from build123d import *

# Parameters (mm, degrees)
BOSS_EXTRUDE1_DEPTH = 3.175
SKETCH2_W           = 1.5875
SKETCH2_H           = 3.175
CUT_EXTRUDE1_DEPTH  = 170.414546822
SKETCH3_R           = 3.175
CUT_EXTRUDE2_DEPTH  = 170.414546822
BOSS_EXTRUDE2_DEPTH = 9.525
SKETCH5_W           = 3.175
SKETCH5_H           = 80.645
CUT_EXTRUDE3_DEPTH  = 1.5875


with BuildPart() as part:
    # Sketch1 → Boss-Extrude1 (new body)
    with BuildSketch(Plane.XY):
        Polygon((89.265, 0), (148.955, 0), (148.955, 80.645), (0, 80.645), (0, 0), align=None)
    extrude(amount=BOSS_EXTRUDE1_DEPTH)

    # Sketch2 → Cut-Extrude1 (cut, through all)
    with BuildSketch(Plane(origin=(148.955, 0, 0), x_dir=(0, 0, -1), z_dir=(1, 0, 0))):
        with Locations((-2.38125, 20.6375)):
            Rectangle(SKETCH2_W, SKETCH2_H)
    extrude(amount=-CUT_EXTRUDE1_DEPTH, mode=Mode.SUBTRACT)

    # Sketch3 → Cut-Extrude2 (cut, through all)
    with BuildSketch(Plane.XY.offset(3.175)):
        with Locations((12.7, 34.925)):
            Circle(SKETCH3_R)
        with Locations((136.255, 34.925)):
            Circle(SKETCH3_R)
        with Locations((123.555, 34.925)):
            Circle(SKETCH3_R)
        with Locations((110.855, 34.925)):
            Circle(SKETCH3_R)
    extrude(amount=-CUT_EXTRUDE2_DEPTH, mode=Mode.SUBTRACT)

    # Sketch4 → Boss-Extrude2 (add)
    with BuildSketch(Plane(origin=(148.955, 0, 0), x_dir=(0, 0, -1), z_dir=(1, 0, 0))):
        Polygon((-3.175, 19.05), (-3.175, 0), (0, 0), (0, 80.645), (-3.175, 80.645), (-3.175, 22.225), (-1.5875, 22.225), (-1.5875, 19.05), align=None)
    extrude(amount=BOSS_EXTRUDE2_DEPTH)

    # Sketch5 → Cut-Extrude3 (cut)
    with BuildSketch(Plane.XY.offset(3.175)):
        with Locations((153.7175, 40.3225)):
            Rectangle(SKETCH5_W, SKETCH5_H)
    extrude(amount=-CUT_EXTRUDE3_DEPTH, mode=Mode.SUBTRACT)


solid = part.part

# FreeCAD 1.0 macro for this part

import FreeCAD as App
import Part
import Sketcher
from FreeCAD import Vector
Q = App.Units.Quantity

doc = App.newDocument("Part")
params = doc.addObject("Spreadsheet::Sheet", "Params")
for row, (alias, value) in enumerate([
    ("sketch1_height", "3.175 in"),
    ("pad1_length", "0.125 in"),
    ("sketch2_width", "0.125 in"),
    ("sketch2_height", "0.0625 in"),
    ("sketch3_diameter", "0.25 in"),
    ("sketch4_width", "2.3 in"),
    ("sketch4_width2", "0.75 in"),
    ("sketch4_width3", "3.175 in"),
    ("sketch4_height", "0.0625 in"),
    ("pad2_length", "0.375 in"),
    ("sketch5_width", "0.125 in"),
    ("sketch5_height", "3.175 in"),
    ("pocket3_length", "0.0625 in"),
], start=1):
    params.set(f"A{row}", alias)
    params.set(f"B{row}", "=" + value)
    params.setAlias(f"B{row}", alias)

body = doc.addObject("PartDesign::Body", "Body")

sketch1 = doc.addObject("Sketcher::SketchObject", "Sketch")
body.addObject(sketch1)
sketch1.AttachmentSupport = (doc.XY_Plane, [""])
sketch1.MapMode = "FlatFace"
sketch1.addGeometry(Part.LineSegment(Vector(148.955, 0, 0), Vector(148.955, 80.645, 0)), False)
sketch1.addGeometry(Part.LineSegment(Vector(148.955, 80.645, 0), Vector(0, 80.645, 0)), False)
sketch1.addGeometry(Part.LineSegment(Vector(0, 80.645, 0), Vector(0, 0, 0)), False)
sketch1.addGeometry(Part.LineSegment(Vector(0, 0, 0), Vector(148.955, 0, 0)), False)
sketch1.addConstraint(Sketcher.Constraint("Coincident", 0, 2, 1, 1))
sketch1.addConstraint(Sketcher.Constraint("Coincident", 1, 2, 2, 1))
sketch1.addConstraint(Sketcher.Constraint("Coincident", 2, 2, 3, 1))
sketch1.addConstraint(Sketcher.Constraint("Coincident", 3, 2, 0, 1))
sketch1.addConstraint(Sketcher.Constraint("Vertical", 0))
sketch1.addConstraint(Sketcher.Constraint("Horizontal", 1))
sketch1.addConstraint(Sketcher.Constraint("Vertical", 2))
sketch1.addConstraint(Sketcher.Constraint("Horizontal", 3))
sketch1.addConstraint(Sketcher.Constraint("Coincident", 2, 2, -1, 1))
sketch1.addConstraint(Sketcher.Constraint("DistanceY", 0, 1, 0, 2, Q("3.175 in")))
sketch1.addConstraint(Sketcher.Constraint("DistanceX", 1, 2, 1, 1, 148.955))
sketch1.setExpression("Constraints[9]", "Params.sketch1_height")
pad1 = doc.addObject("PartDesign::Pad", "Pad")
body.addObject(pad1)
pad1.Profile = sketch1
pad1.setExpression("Length", "Params.pad1_length")

sketch2 = doc.addObject("Sketcher::SketchObject", "Sketch001")
body.addObject(sketch2)
sketch2.AttachmentSupport = (doc.YZ_Plane, [""])
sketch2.MapMode = "FlatFace"
sketch2.AttachmentOffset = App.Placement(Vector(0, 0, 148.955), App.Rotation())
sketch2.addGeometry(Part.LineSegment(Vector(22.225, 3.175, 0), Vector(19.05, 3.175, 0)), False)
sketch2.addGeometry(Part.LineSegment(Vector(19.05, 3.175, 0), Vector(19.05, 1.5875, 0)), False)
sketch2.addGeometry(Part.LineSegment(Vector(19.05, 1.5875, 0), Vector(22.225, 1.5875, 0)), False)
sketch2.addGeometry(Part.LineSegment(Vector(22.225, 1.5875, 0), Vector(22.225, 3.175, 0)), False)
sketch2.addConstraint(Sketcher.Constraint("Coincident", 0, 2, 1, 1))
sketch2.addConstraint(Sketcher.Constraint("Coincident", 1, 2, 2, 1))
sketch2.addConstraint(Sketcher.Constraint("Coincident", 2, 2, 3, 1))
sketch2.addConstraint(Sketcher.Constraint("Coincident", 3, 2, 0, 1))
sketch2.addConstraint(Sketcher.Constraint("Horizontal", 0))
sketch2.addConstraint(Sketcher.Constraint("Vertical", 1))
sketch2.addConstraint(Sketcher.Constraint("Horizontal", 2))
sketch2.addConstraint(Sketcher.Constraint("Vertical", 3))
sketch2.addConstraint(Sketcher.Constraint("DistanceX", 0, 2, 0, 1, Q("0.125 in")))
sketch2.addConstraint(Sketcher.Constraint("DistanceY", 1, 2, 1, 1, Q("0.0625 in")))
sketch2.addConstraint(Sketcher.Constraint("DistanceX", -1, 1, 0, 2, Q("0.75 in")))
sketch2.addConstraint(Sketcher.Constraint("DistanceY", -1, 1, 0, 2, Q("0.125 in")))
sketch2.setExpression("Constraints[8]", "Params.sketch2_width")
sketch2.setExpression("Constraints[9]", "Params.sketch2_height")
pocket1 = doc.addObject("PartDesign::Pocket", "Pocket")
body.addObject(pocket1)
pocket1.Profile = sketch2
pocket1.Type = "ThroughAll"

sketch3 = doc.addObject("Sketcher::SketchObject", "Sketch002")
body.addObject(sketch3)
sketch3.AttachmentSupport = (doc.XY_Plane, [""])
sketch3.MapMode = "FlatFace"
sketch3.AttachmentOffset = App.Placement(Vector(0, 0, 0.125 * 25.4), App.Rotation())
sketch3.addGeometry(Part.Circle(Vector(12.7, 34.925, 0), Vector(0, 0, 1), 3.175), False)
sketch3.addGeometry(Part.Circle(Vector(136.255, 34.925, 0), Vector(0, 0, 1), 3.175), False)
sketch3.addGeometry(Part.Circle(Vector(123.555, 34.925, 0), Vector(0, 0, 1), 3.175), False)
sketch3.addGeometry(Part.Circle(Vector(110.855, 34.925, 0), Vector(0, 0, 1), 3.175), False)
sketch3.addConstraint(Sketcher.Constraint("Equal", 0, 1))
sketch3.addConstraint(Sketcher.Constraint("Equal", 1, 2))
sketch3.addConstraint(Sketcher.Constraint("Equal", 2, 3))
sketch3.addConstraint(Sketcher.Constraint("Horizontal", 0, 3, 1, 3))
sketch3.addConstraint(Sketcher.Constraint("Horizontal", 1, 3, 2, 3))
sketch3.addConstraint(Sketcher.Constraint("Horizontal", 2, 3, 3, 3))
sketch3.addConstraint(Sketcher.Constraint("Diameter", 0, Q("0.25 in")))
sketch3.addConstraint(Sketcher.Constraint("DistanceX", 3, 3, 1, 3, Q("1 in")))
sketch3.addConstraint(Sketcher.Constraint("DistanceX", -1, 1, 0, 3, Q("0.5 in")))
sketch3.addConstraint(Sketcher.Constraint("DistanceX", 2, 3, 1, 3, Q("0.5 in")))
sketch3.addConstraint(Sketcher.Constraint("DistanceY", -1, 1, 0, 3, Q("1.375 in")))
sketch3.addConstraint(Sketcher.Constraint("DistanceX", -1, 1, 1, 3, 136.255))
sketch3.setExpression("Constraints[6]", "Params.sketch3_diameter")
pocket2 = doc.addObject("PartDesign::Pocket", "Pocket001")
body.addObject(pocket2)
pocket2.Profile = sketch3
pocket2.Type = "ThroughAll"

sketch4 = doc.addObject("Sketcher::SketchObject", "Sketch003")
body.addObject(sketch4)
sketch4.AttachmentSupport = (doc.YZ_Plane, [""])
sketch4.MapMode = "FlatFace"
sketch4.AttachmentOffset = App.Placement(Vector(0, 0, 148.955), App.Rotation())
sketch4.addGeometry(Part.LineSegment(Vector(19.05, 3.175, 0), Vector(0, 3.175, 0)), False)
sketch4.addGeometry(Part.LineSegment(Vector(0, 3.175, 0), Vector(0, 0, 0)), False)
sketch4.addGeometry(Part.LineSegment(Vector(0, 0, 0), Vector(80.645, 0, 0)), False)
sketch4.addGeometry(Part.LineSegment(Vector(80.645, 0, 0), Vector(80.645, 3.175, 0)), False)
sketch4.addGeometry(Part.LineSegment(Vector(80.645, 3.175, 0), Vector(22.225, 3.175, 0)), False)
sketch4.addGeometry(Part.LineSegment(Vector(22.225, 3.175, 0), Vector(22.225, 1.5875, 0)), False)
sketch4.addGeometry(Part.LineSegment(Vector(22.225, 1.5875, 0), Vector(19.05, 1.5875, 0)), False)
sketch4.addGeometry(Part.LineSegment(Vector(19.05, 1.5875, 0), Vector(19.05, 3.175, 0)), False)
sketch4.addConstraint(Sketcher.Constraint("Coincident", 0, 2, 1, 1))
sketch4.addConstraint(Sketcher.Constraint("Coincident", 1, 2, 2, 1))
sketch4.addConstraint(Sketcher.Constraint("Coincident", 2, 2, 3, 1))
sketch4.addConstraint(Sketcher.Constraint("Coincident", 3, 2, 4, 1))
sketch4.addConstraint(Sketcher.Constraint("Coincident", 4, 2, 5, 1))
sketch4.addConstraint(Sketcher.Constraint("Coincident", 5, 2, 6, 1))
sketch4.addConstraint(Sketcher.Constraint("Coincident", 6, 2, 7, 1))
sketch4.addConstraint(Sketcher.Constraint("Coincident", 7, 2, 0, 1))
sketch4.addConstraint(Sketcher.Constraint("Horizontal", 0))
sketch4.addConstraint(Sketcher.Constraint("Vertical", 1))
sketch4.addConstraint(Sketcher.Constraint("Horizontal", 2))
sketch4.addConstraint(Sketcher.Constraint("Vertical", 3))
sketch4.addConstraint(Sketcher.Constraint("Horizontal", 4))
sketch4.addConstraint(Sketcher.Constraint("Vertical", 5))
sketch4.addConstraint(Sketcher.Constraint("Horizontal", 6))
sketch4.addConstraint(Sketcher.Constraint("Vertical", 7))
sketch4.addConstraint(Sketcher.Constraint("Coincident", 1, 2, -1, 1))
sketch4.addConstraint(Sketcher.Constraint("Horizontal", 0, 2, 3, 2))
sketch4.addConstraint(Sketcher.Constraint("Equal", 6, 1))
sketch4.addConstraint(Sketcher.Constraint("DistanceX", 4, 2, 4, 1, Q("2.3 in")))
sketch4.addConstraint(Sketcher.Constraint("DistanceX", 0, 2, 0, 1, Q("0.75 in")))
sketch4.addConstraint(Sketcher.Constraint("DistanceX", 2, 1, 2, 2, Q("3.175 in")))
sketch4.addConstraint(Sketcher.Constraint("DistanceY", 5, 2, 5, 1, Q("0.0625 in")))
sketch4.setExpression("Constraints[19]", "Params.sketch4_width")
sketch4.setExpression("Constraints[20]", "Params.sketch4_width2")
sketch4.setExpression("Constraints[21]", "Params.sketch4_width3")
sketch4.setExpression("Constraints[22]", "Params.sketch4_height")
pad2 = doc.addObject("PartDesign::Pad", "Pad001")
body.addObject(pad2)
pad2.Profile = sketch4
pad2.setExpression("Length", "Params.pad2_length")

sketch5 = doc.addObject("Sketcher::SketchObject", "Sketch004")
body.addObject(sketch5)
sketch5.AttachmentSupport = (doc.XY_Plane, [""])
sketch5.MapMode = "FlatFace"
sketch5.AttachmentOffset = App.Placement(Vector(0, 0, 0.125 * 25.4), App.Rotation())
sketch5.addGeometry(Part.LineSegment(Vector(152.13, 80.645, 0), Vector(152.13, 0, 0)), False)
sketch5.addGeometry(Part.LineSegment(Vector(152.13, 0, 0), Vector(155.305, 0, 0)), False)
sketch5.addGeometry(Part.LineSegment(Vector(155.305, 0, 0), Vector(155.305, 80.645, 0)), False)
sketch5.addGeometry(Part.LineSegment(Vector(155.305, 80.645, 0), Vector(152.13, 80.645, 0)), False)
sketch5.addConstraint(Sketcher.Constraint("Coincident", 0, 2, 1, 1))
sketch5.addConstraint(Sketcher.Constraint("Coincident", 1, 2, 2, 1))
sketch5.addConstraint(Sketcher.Constraint("Coincident", 2, 2, 3, 1))
sketch5.addConstraint(Sketcher.Constraint("Coincident", 3, 2, 0, 1))
sketch5.addConstraint(Sketcher.Constraint("Vertical", 0))
sketch5.addConstraint(Sketcher.Constraint("Horizontal", 1))
sketch5.addConstraint(Sketcher.Constraint("Vertical", 2))
sketch5.addConstraint(Sketcher.Constraint("Horizontal", 3))
sketch5.addConstraint(Sketcher.Constraint("PointOnObject", 0, 2, -1))
sketch5.addConstraint(Sketcher.Constraint("DistanceX", 1, 1, 1, 2, Q("0.125 in")))
sketch5.addConstraint(Sketcher.Constraint("DistanceY", 0, 2, 0, 1, Q("3.175 in")))
sketch5.addConstraint(Sketcher.Constraint("DistanceX", -1, 1, 0, 2, 152.13))
sketch5.setExpression("Constraints[9]", "Params.sketch5_width")
sketch5.setExpression("Constraints[10]", "Params.sketch5_height")
pocket3 = doc.addObject("PartDesign::Pocket", "Pocket002")
body.addObject(pocket3)
pocket3.Profile = sketch5
pocket3.setExpression("Length", "Params.pocket3_length")

doc.recompute()
